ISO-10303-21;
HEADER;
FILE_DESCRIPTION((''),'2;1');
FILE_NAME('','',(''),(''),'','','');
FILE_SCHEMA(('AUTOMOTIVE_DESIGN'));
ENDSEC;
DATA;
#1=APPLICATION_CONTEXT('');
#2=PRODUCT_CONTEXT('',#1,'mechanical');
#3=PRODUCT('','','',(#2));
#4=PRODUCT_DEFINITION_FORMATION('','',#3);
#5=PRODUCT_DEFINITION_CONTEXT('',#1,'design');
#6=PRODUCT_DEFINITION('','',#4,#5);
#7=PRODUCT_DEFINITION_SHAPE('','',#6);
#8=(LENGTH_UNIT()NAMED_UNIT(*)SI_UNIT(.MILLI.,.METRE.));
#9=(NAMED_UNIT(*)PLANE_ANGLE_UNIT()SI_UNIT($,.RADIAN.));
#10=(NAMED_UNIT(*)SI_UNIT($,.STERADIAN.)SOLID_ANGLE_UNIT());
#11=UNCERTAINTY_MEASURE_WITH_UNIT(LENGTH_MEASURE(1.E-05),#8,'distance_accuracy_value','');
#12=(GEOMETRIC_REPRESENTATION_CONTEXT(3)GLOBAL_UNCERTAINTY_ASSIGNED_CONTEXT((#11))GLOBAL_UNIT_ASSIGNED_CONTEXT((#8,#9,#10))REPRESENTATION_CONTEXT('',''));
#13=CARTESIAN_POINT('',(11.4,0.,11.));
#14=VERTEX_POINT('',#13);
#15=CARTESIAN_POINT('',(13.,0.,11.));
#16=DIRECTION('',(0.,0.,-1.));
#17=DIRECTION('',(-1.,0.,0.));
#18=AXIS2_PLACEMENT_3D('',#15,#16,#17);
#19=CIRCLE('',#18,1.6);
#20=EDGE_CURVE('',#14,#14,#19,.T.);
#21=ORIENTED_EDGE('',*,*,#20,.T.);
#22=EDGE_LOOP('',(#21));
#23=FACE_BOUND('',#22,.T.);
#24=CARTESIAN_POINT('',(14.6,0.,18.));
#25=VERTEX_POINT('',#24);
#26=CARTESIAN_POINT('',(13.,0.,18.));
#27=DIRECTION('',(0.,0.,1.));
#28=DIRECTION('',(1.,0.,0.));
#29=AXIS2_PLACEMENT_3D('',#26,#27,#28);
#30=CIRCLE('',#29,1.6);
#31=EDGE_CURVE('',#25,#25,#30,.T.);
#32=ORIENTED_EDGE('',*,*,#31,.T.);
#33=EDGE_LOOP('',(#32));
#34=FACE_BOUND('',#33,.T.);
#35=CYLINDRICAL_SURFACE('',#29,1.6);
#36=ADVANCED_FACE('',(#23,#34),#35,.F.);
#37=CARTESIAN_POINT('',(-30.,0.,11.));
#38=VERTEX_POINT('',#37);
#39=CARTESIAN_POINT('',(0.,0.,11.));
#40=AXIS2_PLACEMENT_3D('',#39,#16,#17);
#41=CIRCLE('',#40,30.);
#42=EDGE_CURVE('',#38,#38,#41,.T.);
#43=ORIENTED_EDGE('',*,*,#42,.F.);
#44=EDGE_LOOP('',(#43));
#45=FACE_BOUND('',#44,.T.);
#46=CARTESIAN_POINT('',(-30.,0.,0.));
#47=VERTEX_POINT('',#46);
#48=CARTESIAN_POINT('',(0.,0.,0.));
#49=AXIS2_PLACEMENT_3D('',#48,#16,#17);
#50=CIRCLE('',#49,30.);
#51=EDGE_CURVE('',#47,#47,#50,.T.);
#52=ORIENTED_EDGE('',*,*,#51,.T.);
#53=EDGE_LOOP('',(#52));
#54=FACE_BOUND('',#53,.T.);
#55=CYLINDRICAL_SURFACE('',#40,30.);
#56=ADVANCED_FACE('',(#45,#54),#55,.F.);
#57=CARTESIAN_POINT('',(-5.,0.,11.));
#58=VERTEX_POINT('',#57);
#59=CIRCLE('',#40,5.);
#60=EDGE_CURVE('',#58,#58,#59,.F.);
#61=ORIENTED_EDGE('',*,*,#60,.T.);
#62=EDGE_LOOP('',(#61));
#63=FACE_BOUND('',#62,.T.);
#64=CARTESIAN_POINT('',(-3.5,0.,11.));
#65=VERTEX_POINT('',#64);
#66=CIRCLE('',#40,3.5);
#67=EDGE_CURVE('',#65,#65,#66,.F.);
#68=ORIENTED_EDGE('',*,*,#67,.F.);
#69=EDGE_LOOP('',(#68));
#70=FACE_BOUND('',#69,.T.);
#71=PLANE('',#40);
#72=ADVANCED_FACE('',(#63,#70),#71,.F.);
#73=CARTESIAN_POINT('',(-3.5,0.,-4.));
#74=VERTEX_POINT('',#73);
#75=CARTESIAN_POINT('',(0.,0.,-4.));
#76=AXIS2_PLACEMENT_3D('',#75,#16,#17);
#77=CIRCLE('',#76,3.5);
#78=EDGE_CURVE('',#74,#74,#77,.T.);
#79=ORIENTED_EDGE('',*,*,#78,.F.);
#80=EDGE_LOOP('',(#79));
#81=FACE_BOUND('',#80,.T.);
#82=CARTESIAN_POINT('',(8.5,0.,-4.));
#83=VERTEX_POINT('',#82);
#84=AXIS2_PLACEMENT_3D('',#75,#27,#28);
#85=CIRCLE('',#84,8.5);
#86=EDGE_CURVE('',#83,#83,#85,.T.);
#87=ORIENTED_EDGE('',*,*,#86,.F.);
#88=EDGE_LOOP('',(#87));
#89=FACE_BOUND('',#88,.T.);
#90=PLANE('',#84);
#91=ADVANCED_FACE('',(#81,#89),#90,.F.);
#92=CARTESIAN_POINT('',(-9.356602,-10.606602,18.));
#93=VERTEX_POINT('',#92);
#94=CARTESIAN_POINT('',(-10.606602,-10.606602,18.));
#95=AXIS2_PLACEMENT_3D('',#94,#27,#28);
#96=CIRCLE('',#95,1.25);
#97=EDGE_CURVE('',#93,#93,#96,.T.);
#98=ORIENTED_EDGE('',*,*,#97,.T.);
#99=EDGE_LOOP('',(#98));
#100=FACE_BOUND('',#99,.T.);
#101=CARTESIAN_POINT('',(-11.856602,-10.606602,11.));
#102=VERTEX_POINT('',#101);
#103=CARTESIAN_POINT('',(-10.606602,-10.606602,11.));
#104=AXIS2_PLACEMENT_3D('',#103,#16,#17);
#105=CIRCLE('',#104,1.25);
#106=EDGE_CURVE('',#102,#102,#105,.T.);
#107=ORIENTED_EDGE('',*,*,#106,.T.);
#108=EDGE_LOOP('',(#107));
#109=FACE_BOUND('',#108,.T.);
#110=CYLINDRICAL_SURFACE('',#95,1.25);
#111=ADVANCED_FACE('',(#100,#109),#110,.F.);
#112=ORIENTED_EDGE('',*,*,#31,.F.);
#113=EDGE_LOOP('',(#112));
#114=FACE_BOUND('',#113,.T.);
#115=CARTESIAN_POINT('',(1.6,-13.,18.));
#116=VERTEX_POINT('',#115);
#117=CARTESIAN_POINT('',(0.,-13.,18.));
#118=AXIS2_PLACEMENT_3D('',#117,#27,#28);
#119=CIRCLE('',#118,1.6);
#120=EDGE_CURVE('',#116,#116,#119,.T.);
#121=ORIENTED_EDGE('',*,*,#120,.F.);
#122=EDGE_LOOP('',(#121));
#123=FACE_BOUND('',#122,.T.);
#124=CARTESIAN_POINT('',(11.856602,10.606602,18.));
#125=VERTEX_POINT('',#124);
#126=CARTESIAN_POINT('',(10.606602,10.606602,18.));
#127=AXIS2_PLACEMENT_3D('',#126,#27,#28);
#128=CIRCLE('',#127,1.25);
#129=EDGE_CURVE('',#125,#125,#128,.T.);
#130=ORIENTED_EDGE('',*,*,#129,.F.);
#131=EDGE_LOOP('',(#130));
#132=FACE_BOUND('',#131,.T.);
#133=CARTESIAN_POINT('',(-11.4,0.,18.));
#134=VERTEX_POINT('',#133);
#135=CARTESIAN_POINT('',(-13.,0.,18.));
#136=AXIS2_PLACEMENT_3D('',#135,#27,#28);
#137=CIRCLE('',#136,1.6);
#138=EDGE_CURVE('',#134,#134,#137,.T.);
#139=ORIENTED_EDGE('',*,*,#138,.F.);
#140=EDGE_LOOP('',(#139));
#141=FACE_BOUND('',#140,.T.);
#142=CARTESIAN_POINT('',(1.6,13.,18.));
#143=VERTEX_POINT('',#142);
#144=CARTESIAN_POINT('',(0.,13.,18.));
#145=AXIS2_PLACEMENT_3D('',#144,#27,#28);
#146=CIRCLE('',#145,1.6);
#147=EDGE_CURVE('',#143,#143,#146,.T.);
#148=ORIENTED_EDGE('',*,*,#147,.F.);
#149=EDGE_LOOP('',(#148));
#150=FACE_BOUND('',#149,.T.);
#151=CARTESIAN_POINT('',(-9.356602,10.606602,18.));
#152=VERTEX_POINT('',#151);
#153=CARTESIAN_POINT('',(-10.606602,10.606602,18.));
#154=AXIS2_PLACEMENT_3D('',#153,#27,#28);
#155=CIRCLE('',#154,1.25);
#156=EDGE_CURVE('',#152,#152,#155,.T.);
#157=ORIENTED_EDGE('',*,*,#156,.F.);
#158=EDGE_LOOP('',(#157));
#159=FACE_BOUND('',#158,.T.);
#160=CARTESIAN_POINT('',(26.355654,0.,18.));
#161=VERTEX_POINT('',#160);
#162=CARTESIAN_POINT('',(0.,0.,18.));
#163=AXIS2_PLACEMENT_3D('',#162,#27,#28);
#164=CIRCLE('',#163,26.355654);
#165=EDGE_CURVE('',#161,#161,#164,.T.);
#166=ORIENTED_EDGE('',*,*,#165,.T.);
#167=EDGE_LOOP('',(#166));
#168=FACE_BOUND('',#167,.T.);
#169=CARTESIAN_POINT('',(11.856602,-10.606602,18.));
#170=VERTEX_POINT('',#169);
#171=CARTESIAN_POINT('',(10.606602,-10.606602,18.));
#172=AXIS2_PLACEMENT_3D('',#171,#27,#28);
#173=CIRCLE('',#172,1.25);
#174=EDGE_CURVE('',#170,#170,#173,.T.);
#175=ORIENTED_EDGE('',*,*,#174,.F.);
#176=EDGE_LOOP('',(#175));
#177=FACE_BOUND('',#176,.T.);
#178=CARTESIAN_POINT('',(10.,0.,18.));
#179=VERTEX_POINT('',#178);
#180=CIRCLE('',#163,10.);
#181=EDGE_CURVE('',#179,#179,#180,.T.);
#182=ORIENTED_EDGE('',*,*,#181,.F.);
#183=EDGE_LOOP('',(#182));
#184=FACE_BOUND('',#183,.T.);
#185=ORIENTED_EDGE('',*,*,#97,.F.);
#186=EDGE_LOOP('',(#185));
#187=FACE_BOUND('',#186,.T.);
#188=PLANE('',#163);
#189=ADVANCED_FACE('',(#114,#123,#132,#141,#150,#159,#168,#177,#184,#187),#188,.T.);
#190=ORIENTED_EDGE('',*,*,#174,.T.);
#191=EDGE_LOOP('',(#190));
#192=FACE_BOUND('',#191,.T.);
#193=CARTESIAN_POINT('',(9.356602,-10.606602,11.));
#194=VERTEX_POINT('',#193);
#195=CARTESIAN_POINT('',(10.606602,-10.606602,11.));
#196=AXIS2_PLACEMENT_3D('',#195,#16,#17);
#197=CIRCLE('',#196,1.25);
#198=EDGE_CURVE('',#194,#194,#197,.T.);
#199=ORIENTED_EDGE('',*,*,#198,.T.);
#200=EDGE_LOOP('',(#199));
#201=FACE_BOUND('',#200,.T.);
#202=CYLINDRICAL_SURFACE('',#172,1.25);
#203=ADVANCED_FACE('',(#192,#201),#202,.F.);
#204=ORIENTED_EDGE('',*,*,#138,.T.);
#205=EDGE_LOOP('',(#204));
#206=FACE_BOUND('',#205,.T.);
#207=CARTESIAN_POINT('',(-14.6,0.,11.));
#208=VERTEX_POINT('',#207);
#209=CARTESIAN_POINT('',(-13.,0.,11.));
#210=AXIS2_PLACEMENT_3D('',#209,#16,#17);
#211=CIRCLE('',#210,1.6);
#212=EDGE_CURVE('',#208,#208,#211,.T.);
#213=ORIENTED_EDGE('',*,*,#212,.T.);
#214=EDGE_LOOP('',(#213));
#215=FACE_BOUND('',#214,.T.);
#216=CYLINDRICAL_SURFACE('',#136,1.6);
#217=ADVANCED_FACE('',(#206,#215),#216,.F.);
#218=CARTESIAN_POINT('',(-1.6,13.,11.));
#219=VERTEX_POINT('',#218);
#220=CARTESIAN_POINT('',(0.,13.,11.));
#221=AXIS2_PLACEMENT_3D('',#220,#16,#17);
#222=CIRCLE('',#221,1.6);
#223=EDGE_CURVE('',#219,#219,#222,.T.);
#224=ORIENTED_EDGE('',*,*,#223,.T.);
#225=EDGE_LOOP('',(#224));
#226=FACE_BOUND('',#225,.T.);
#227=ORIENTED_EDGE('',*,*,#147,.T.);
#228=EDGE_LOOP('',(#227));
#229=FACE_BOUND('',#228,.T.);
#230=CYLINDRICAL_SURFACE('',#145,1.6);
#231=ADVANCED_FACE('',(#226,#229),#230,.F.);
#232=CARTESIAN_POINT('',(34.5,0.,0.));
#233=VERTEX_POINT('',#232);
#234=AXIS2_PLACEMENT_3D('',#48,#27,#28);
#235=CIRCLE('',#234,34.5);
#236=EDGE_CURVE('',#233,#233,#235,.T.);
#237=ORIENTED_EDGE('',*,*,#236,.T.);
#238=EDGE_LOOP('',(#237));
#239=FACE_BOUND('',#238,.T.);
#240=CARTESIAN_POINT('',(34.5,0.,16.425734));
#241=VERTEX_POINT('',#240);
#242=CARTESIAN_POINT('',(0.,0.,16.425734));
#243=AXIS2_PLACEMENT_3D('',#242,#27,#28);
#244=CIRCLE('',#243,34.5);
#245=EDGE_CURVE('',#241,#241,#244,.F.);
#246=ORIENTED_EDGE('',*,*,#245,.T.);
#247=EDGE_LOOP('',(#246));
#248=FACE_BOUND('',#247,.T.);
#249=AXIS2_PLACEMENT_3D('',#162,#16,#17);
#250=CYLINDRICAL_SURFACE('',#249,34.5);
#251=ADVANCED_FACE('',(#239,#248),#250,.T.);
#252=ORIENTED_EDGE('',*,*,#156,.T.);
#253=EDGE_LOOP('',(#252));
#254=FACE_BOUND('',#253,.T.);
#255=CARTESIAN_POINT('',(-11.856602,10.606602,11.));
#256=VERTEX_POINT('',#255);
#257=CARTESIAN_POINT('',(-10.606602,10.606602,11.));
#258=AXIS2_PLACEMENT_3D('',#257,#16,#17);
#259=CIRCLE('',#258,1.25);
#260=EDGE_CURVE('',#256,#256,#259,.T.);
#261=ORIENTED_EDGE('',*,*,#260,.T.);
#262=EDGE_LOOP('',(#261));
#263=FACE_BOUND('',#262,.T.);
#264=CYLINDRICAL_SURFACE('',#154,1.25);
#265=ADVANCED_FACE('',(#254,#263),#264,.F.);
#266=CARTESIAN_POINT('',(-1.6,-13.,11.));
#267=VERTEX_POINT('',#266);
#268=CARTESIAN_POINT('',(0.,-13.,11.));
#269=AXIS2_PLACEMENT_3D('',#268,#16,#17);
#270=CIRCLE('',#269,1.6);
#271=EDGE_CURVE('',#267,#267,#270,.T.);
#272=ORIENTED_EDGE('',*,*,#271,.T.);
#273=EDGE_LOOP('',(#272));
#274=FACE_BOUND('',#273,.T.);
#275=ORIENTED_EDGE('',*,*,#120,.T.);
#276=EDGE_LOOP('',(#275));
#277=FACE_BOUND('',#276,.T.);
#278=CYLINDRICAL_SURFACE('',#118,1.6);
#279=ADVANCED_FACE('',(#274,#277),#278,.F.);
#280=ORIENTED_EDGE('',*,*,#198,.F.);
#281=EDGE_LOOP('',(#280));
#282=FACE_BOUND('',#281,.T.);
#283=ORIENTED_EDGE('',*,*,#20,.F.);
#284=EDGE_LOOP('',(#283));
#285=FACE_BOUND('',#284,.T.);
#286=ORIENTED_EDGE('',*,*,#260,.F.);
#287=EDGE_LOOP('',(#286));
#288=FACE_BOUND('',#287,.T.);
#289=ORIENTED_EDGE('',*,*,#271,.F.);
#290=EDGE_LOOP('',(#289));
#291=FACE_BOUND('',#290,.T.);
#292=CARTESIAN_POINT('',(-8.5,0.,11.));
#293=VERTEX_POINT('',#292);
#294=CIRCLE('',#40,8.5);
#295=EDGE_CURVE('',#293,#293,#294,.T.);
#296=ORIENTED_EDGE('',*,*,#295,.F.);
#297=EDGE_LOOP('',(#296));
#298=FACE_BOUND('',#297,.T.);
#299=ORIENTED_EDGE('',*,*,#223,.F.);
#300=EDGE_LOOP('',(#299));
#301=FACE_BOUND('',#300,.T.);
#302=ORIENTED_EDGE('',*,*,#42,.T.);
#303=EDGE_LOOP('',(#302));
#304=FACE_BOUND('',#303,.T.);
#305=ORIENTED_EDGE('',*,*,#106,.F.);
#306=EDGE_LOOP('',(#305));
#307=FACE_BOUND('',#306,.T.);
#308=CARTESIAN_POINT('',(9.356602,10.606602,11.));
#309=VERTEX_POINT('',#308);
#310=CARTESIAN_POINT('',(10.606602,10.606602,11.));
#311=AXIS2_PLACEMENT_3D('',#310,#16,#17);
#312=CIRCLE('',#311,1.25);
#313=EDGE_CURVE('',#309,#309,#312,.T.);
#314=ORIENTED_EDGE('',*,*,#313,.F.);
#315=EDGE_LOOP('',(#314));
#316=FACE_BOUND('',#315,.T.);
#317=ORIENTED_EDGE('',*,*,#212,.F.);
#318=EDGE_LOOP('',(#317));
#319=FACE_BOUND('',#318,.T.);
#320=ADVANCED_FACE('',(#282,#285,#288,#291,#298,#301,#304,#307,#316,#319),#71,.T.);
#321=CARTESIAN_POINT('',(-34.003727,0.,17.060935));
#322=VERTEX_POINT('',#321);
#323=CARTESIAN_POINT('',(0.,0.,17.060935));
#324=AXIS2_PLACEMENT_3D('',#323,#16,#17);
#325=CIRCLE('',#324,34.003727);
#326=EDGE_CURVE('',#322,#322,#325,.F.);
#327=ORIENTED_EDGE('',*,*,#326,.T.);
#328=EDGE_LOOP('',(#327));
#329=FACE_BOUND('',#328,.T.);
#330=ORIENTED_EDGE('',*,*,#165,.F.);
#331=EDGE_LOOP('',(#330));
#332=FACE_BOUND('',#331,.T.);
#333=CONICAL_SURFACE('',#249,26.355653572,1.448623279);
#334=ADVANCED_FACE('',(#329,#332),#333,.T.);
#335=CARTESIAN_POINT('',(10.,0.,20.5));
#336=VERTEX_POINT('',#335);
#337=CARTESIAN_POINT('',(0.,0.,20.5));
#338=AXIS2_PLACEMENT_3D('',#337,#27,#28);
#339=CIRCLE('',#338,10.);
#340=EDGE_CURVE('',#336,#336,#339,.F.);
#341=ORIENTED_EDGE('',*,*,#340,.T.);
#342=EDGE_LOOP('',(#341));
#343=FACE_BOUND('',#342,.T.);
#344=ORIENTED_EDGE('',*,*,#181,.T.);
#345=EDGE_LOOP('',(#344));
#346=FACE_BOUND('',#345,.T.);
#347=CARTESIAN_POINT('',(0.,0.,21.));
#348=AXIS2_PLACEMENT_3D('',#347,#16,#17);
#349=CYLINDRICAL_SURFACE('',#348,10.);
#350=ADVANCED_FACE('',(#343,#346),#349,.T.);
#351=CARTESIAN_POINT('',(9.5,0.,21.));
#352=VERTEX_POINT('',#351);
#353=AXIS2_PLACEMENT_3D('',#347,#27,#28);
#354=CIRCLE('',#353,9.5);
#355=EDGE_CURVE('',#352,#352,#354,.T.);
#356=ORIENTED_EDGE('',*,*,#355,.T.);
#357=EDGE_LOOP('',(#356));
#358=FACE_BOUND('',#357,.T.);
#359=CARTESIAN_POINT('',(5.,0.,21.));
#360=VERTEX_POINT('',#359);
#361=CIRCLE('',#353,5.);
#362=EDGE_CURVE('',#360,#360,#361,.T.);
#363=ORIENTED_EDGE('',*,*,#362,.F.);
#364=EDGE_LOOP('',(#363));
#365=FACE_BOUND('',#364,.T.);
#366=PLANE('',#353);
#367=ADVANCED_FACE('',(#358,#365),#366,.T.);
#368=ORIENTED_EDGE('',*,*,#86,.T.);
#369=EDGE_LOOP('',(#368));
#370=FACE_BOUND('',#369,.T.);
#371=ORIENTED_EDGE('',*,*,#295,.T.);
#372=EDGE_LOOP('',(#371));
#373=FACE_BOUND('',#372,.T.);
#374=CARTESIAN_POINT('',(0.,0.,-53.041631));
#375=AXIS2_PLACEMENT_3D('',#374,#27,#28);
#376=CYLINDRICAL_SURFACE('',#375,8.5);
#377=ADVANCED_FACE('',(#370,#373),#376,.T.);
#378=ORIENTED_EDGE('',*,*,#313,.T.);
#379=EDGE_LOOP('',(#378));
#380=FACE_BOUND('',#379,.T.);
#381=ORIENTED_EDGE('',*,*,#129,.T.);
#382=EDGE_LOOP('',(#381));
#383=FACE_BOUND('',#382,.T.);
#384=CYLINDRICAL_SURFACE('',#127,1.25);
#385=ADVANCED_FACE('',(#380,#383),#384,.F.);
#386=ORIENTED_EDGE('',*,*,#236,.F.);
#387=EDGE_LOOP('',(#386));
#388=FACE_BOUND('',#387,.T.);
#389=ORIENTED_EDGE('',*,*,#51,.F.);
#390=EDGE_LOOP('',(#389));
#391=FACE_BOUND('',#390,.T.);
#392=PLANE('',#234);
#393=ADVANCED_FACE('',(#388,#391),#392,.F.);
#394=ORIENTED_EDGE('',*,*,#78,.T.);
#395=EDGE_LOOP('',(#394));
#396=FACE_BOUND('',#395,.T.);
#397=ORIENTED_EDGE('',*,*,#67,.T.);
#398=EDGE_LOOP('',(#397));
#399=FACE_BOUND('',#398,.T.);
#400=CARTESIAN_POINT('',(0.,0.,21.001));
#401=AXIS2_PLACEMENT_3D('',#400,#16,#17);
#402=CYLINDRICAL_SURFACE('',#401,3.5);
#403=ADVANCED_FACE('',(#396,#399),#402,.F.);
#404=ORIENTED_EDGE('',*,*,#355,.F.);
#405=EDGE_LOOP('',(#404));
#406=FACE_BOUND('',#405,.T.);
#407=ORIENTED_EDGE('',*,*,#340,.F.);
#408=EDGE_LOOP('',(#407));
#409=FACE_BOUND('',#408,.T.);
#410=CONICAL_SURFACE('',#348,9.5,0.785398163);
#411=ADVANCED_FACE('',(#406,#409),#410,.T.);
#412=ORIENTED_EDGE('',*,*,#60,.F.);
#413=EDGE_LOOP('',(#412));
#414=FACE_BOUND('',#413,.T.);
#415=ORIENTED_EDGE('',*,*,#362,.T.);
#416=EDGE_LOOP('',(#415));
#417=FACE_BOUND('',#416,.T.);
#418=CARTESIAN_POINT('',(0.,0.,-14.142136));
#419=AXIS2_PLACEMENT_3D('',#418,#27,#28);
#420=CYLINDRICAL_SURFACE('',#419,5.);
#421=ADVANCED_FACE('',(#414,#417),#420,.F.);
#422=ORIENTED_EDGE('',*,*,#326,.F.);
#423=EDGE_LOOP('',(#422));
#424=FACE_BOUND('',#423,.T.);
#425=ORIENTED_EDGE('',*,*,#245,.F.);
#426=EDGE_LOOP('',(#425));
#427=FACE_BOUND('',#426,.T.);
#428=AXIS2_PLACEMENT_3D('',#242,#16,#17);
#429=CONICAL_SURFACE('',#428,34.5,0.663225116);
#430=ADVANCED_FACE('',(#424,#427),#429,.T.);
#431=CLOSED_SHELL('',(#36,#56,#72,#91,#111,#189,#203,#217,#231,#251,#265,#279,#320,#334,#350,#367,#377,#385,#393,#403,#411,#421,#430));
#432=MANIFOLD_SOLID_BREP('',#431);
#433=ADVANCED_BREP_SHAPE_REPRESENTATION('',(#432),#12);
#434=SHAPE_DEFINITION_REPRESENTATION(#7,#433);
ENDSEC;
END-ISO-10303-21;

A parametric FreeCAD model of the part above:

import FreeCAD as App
import Part
import Sketcher
from FreeCAD import Vector
Q = App.Units.Quantity


def edges_at(feature, points):
    """Names of the edges that pass closest to the given points."""
    edges = feature.Shape.Edges
    near = lambda p: min(range(len(edges)), key=lambda i: edges[i].distToShape(Part.Vertex(*p))[0])
    return sorted({f"Edge{near(p) + 1}" for p in points})

doc = App.newDocument("Part")
body = doc.addObject("PartDesign::Body", "Body")

sketch1 = doc.addObject("Sketcher::SketchObject", "Sketch")
body.addObject(sketch1)
sketch1.AttachmentSupport = (doc.XY_Plane, [""])
sketch1.MapMode = "FlatFace"
sketch1.addGeometry(Part.Circle(Vector(0, 0, 0), Vector(0, 0, 1), 34), False)
sketch1.addConstraint([
    Sketcher.Constraint("Coincident", 0, 3, -1, 1),
    Sketcher.Constraint("Diameter", 0, Q("69 mm")),
])
pad1 = doc.addObject("PartDesign::Pad", "Pad")
body.addObject(pad1)
pad1.Profile = sketch1
pad1.Length = 18

sketch2 = doc.addObject("Sketcher::SketchObject", "Sketch001")
body.addObject(sketch2)
sketch2.AttachmentSupport = (doc.XY_Plane, [""])
sketch2.MapMode = "FlatFace"
sketch2.AttachmentOffset = App.Placement(Vector(0, 0, 18), App.Rotation())
sketch2.addGeometry(Part.Circle(Vector(0, 0, 0), Vector(0, 0, 1), 10), False)
sketch2.addConstraint([
    Sketcher.Constraint("Coincident", 0, 3, -1, 1),
    Sketcher.Constraint("Diameter", 0, Q("20 mm")),
])
pad2 = doc.addObject("PartDesign::Pad", "Pad001")
body.addObject(pad2)
pad2.Profile = sketch2
pad2.Length = 3
doc.recompute()

chamfer = doc.addObject("PartDesign::Chamfer", "Chamfer")
body.addObject(chamfer)
chamfer.Base = (pad2, edges_at(pad2, [(-34.5, 0, 18)]))
chamfer.ChamferType = "Two distances"
chamfer.Size = 1
chamfer.Size2 = 8.144346

sketch3 = doc.addObject("Sketcher::SketchObject", "Sketch002")
body.addObject(sketch3)
sketch3.AttachmentSupport = (doc.XY_Plane, [""])
sketch3.MapMode = "FlatFace"
sketch3.AttachmentOffset = App.Placement(Vector(0, 0, 21), App.Rotation())
sketch3.addGeometry(Part.Circle(Vector(0, 0, 0), Vector(0, 0, 1), 5), False)
sketch3.addConstraint([
    Sketcher.Constraint("Coincident", 0, 3, -1, 1),
    Sketcher.Constraint("Diameter", 0, Q("10 mm")),
])
pocket1 = doc.addObject("PartDesign::Pocket", "Pocket")
body.addObject(pocket1)
pocket1.Profile = sketch3
pocket1.Length = 21

sketch4 = doc.addObject("Sketcher::SketchObject", "Sketch003")
body.addObject(sketch4)
sketch4.AttachmentSupport = (doc.XY_Plane, [""])
sketch4.MapMode = "FlatFace"
sketch4.addGeometry(Part.Circle(Vector(0, 0, 0), Vector(0, 0, 1), 30), False)
sketch4.addConstraint([
    Sketcher.Constraint("Coincident", 0, 3, -1, 1),
    Sketcher.Constraint("Diameter", 0, Q("60 mm")),
])
pocket2 = doc.addObject("PartDesign::Pocket", "Pocket001")
body.addObject(pocket2)
pocket2.Profile = sketch4
pocket2.Length = 11
pocket2.Reversed = True

sketch5 = doc.addObject("Sketcher::SketchObject", "Sketch004")
body.addObject(sketch5)
sketch5.AttachmentSupport = (doc.XY_Plane, [""])
sketch5.MapMode = "FlatFace"
sketch5.AttachmentOffset = App.Placement(Vector(0, 0, 18), App.Rotation())
sketch5.addGeometry([
    Part.Circle(Vector(10.6, 10.6, 0), Vector(0, 0, 1), 1.2),
    Part.Circle(Vector(10.6, -10.6, 0), Vector(0, 0, 1), 1.2),
    Part.Circle(Vector(-10.6, -10.6, 0), Vector(0, 0, 1), 1.2),
    Part.Circle(Vector(-10.6, 10.6, 0), Vector(0, 0, 1), 1.2),
], False)
sketch5.addConstraint([
    Sketcher.Constraint("Equal", 0, 1),
    Sketcher.Constraint("Equal", 1, 2),
    Sketcher.Constraint("Equal", 2, 3),
    Sketcher.Constraint("Symmetric", 0, 3, 2, 3, -1, 1),
    Sketcher.Constraint("Symmetric", 1, 3, 3, 3, -1, 1),
    Sketcher.Constraint("Symmetric", 1, 3, 2, 3, -2),
    Sketcher.Constraint("Diameter", 0, Q("2.5 mm")),
    Sketcher.Constraint("DistanceX", -1, 1, 0, 3, Q("10.606602 mm")),
    Sketcher.Constraint("DistanceY", -1, 1, 0, 3, Q("10.606602 mm")),
])
doc.recompute()
hole = doc.addObject("PartDesign::Hole", "Hole")
body.addObject(hole)
hole.Profile = sketch5
hole.ThreadType = "None"
hole.Diameter = 2.5
hole.DepthType = "ThroughAll"

sketch6 = doc.addObject("Sketcher::SketchObject", "Sketch005")
body.addObject(sketch6)
sketch6.AttachmentSupport = (doc.XY_Plane, [""])
sketch6.MapMode = "FlatFace"
sketch6.AttachmentOffset = App.Placement(Vector(0, 0, 18), App.Rotation())
sketch6.addGeometry([
    Part.Circle(Vector(13, 0, 0), Vector(0, 0, 1), 1.6),
    Part.Circle(Vector(-13, 0, 0), Vector(0, 0, 1), 1.6),
    Part.Circle(Vector(0, 13, 0), Vector(0, 0, 1), 1.6),
    Part.Circle(Vector(0, -13, 0), Vector(0, 0, 1), 1.6),
], False)
sketch6.addConstraint([
    Sketcher.Constraint("Equal", 0, 1),
    Sketcher.Constraint("Equal", 1, 2),
    Sketcher.Constraint("Equal", 2, 3),
    Sketcher.Constraint("Symmetric", 0, 3, 1, 3, -1, 1),
    Sketcher.Constraint("Symmetric", 2, 3, 3, 3, -1, 1),
    Sketcher.Constraint("PointOnObject", 0, 3, -1),
    Sketcher.Constraint("PointOnObject", 2, 3, -2),
    Sketcher.Constraint("Diameter", 0, Q("3.2 mm")),
    Sketcher.Constraint("DistanceX", -1, 1, 0, 3, Q("13 mm")),
    Sketcher.Constraint("DistanceY", -1, 1, 2, 3, Q("13 mm")),
])
doc.recompute()
hole2 = doc.addObject("PartDesign::Hole", "Hole001")
body.addObject(hole2)
hole2.Profile = sketch6
hole2.ThreadType = "None"
hole2.Diameter = 3.2
hole2.DepthType = "ThroughAll"
doc.recompute()

chamfer2 = doc.addObject("PartDesign::Chamfer", "Chamfer001")
body.addObject(chamfer2)
chamfer2.Base = (hole2, edges_at(hole2, [(-34.5, 0, 17)]))
chamfer2.ChamferType = "Two distances"
chamfer2.Size = 0.574266
chamfer2.Size2 = 0.5
doc.recompute()

chamfer3 = doc.addObject("PartDesign::Chamfer", "Chamfer002")
body.addObject(chamfer3)
chamfer3.Base = (chamfer2, edges_at(chamfer2, [(-10, 0, 21)]))
chamfer3.Size = 0.5

sketch7 = doc.addObject("Sketcher::SketchObject", "Sketch006")
body.addObject(sketch7)
sketch7.AttachmentSupport = (doc.XY_Plane, [""])
sketch7.MapMode = "FlatFace"
sketch7.AttachmentOffset = App.Placement(Vector(0, 0, 11), App.Rotation())
sketch7.addGeometry(Part.Circle(Vector(0, 0, 0), Vector(0, 0, 1), 8), False)
sketch7.addConstraint([
    Sketcher.Constraint("Coincident", 0, 3, -1, 1),
    Sketcher.Constraint("Diameter", 0, Q("17 mm")),
])
pad3 = doc.addObject("PartDesign::Pad", "Pad002")
body.addObject(pad3)
pad3.Profile = sketch7
pad3.Length = 15
pad3.Reversed = True

sketch8 = doc.addObject("Sketcher::SketchObject", "Sketch007")
body.addObject(sketch8)
sketch8.AttachmentSupport = (doc.XY_Plane, [""])
sketch8.MapMode = "FlatFace"
sketch8.AttachmentOffset = App.Placement(Vector(0, 0, -4), App.Rotation())
sketch8.addGeometry(Part.Circle(Vector(0, 0, 0), Vector(0, 0, 1), 3.5), False)
sketch8.addConstraint([
    Sketcher.Constraint("Coincident", 0, 3, -1, 1),
    Sketcher.Constraint("Diameter", 0, Q("7 mm")),
])
pocket3 = doc.addObject("PartDesign::Pocket", "Pocket002")
body.addObject(pocket3)
pocket3.Profile = sketch8
pocket3.Type = "UpToFirst"
pocket3.Reversed = True

doc.recompute()
